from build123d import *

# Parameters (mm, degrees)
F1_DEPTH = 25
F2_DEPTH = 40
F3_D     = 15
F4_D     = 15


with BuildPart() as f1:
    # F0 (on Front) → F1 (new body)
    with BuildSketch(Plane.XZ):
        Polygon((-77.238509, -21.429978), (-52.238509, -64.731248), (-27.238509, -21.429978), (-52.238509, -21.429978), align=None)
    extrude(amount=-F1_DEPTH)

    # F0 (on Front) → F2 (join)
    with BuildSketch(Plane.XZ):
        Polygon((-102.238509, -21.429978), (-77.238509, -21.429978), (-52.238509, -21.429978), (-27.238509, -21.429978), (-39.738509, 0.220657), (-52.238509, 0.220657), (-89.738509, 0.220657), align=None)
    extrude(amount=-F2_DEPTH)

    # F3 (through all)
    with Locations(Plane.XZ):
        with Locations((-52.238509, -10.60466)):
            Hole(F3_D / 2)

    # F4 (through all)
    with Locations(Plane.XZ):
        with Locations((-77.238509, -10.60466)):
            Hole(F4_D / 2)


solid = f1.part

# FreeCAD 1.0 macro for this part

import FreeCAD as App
import Part
import Sketcher

V = App.Vector
Q = App.Units.Quantity

doc = App.newDocument("Part")
body = doc.addObject("PartDesign::Body", "Body")

# Sketch on XZ plane
sketch1 = body.newObject("Sketcher::SketchObject", "Sketch")
sketch1.AttachmentSupport = (doc.getObject("XZ_Plane"), [""])
sketch1.MapMode = "FlatFace"
sketch1.addGeometry([
    Part.LineSegment(V(-77, -21, 0), V(-52, -65, 0)),
    Part.LineSegment(V(-52, -65, 0), V(-27, -21, 0)),
    Part.LineSegment(V(-27, -21, 0), V(-77, -21, 0)),
], False)
sketch1.addConstraint([
    Sketcher.Constraint("Coincident", 0, 2, 1, 1),
    Sketcher.Constraint("Coincident", 1, 2, 2, 1),
    Sketcher.Constraint("Coincident", 2, 2, 0, 1),
    Sketcher.Constraint("Horizontal", 2),
    Sketcher.Constraint("Equal", 0, 1),
    Sketcher.Constraint("DistanceX", 2, 2, 2, 1, Q("50 mm")),
    Sketcher.Constraint("Angle", 0, Q("-60 deg")),
    Sketcher.Constraint("DistanceX", 0, 2, -1, 1, Q("52.238509 mm")),
    Sketcher.Constraint("DistanceY", 0, 2, -1, 1, Q("64.731248 mm")),
])
pad1 = body.newObject("PartDesign::Pad", "Pad")
pad1.Profile = sketch1
pad1.Length = 25
pad1.Reversed = True

# Sketch on XZ plane
sketch2 = body.newObject("Sketcher::SketchObject", "Sketch001")
sketch2.AttachmentSupport = (doc.getObject("XZ_Plane"), [""])
sketch2.MapMode = "FlatFace"
sketch2.addGeometry([
    Part.LineSegment(V(-102, -21, 0), V(-27, -21, 0)),
    Part.LineSegment(V(-27, -21, 0), V(-40, 0, 0)),
    Part.LineSegment(V(-40, 0, 0), V(-90, 0, 0)),
    Part.LineSegment(V(-90, 0, 0), V(-102, -21, 0)),
], False)
sketch2.addConstraint([
    Sketcher.Constraint("Coincident", 0, 2, 1, 1),
    Sketcher.Constraint("Coincident", 1, 2, 2, 1),
    Sketcher.Constraint("Coincident", 2, 2, 3, 1),
    Sketcher.Constraint("Coincident", 3, 2, 0, 1),
    Sketcher.Constraint("Horizontal", 0),
    Sketcher.Constraint("Horizontal", 2),
    Sketcher.Constraint("Equal", 1, 3),
    Sketcher.Constraint("DistanceX", 0, 1, 0, 2, Q("75 mm")),
    Sketcher.Constraint("DistanceX", 2, 2, 2, 1, Q("50 mm")),
    Sketcher.Constraint("Angle", 1, Q("120 deg")),
    Sketcher.Constraint("DistanceX", 0, 2, -1, 1, Q("27.238509 mm")),
    Sketcher.Constraint("DistanceY", 0, 2, -1, 1, Q("21.429978 mm")),
])
pad2 = body.newObject("PartDesign::Pad", "Pad001")
pad2.Profile = sketch2
pad2.Length = 40
pad2.Reversed = True

# Sketch on XZ plane
sketch3 = body.newObject("Sketcher::SketchObject", "Sketch002")
sketch3.AttachmentSupport = (doc.getObject("XZ_Plane"), [""])
sketch3.MapMode = "FlatFace"
sketch3.addGeometry(Part.Circle(V(-52, -11, 0), V(0, 0, 1), 8), False)
sketch3.addConstraint([
    Sketcher.Constraint("Diameter", 0, Q("15 mm")),
    Sketcher.Constraint("DistanceX", 0, 3, -1, 1, Q("52.238509 mm")),
    Sketcher.Constraint("DistanceY", 0, 3, -1, 1, Q("10.60466 mm")),
])
doc.recompute()
hole = body.newObject("PartDesign::Hole", "Hole")
hole.Profile = sketch3
hole.ThreadType = "None"
hole.Diameter = 15
hole.DepthType = "ThroughAll"

# Sketch on XZ plane
sketch4 = body.newObject("Sketcher::SketchObject", "Sketch003")
sketch4.AttachmentSupport = (doc.getObject("XZ_Plane"), [""])
sketch4.MapMode = "FlatFace"
sketch4.addGeometry(Part.Circle(V(-77, -11, 0), V(0, 0, 1), 8), False)
sketch4.addConstraint([
    Sketcher.Constraint("Diameter", 0, Q("15 mm")),
    Sketcher.Constraint("DistanceX", 0, 3, -1, 1, Q("77.238509 mm")),
    Sketcher.Constraint("DistanceY", 0, 3, -1, 1, Q("10.60466 mm")),
])
doc.recompute()
hole2 = body.newObject("PartDesign::Hole", "Hole001")
hole2.Profile = sketch4
hole2.ThreadType = "None"
hole2.Diameter = 15
hole2.DepthType = "ThroughAll"

doc.recompute()
